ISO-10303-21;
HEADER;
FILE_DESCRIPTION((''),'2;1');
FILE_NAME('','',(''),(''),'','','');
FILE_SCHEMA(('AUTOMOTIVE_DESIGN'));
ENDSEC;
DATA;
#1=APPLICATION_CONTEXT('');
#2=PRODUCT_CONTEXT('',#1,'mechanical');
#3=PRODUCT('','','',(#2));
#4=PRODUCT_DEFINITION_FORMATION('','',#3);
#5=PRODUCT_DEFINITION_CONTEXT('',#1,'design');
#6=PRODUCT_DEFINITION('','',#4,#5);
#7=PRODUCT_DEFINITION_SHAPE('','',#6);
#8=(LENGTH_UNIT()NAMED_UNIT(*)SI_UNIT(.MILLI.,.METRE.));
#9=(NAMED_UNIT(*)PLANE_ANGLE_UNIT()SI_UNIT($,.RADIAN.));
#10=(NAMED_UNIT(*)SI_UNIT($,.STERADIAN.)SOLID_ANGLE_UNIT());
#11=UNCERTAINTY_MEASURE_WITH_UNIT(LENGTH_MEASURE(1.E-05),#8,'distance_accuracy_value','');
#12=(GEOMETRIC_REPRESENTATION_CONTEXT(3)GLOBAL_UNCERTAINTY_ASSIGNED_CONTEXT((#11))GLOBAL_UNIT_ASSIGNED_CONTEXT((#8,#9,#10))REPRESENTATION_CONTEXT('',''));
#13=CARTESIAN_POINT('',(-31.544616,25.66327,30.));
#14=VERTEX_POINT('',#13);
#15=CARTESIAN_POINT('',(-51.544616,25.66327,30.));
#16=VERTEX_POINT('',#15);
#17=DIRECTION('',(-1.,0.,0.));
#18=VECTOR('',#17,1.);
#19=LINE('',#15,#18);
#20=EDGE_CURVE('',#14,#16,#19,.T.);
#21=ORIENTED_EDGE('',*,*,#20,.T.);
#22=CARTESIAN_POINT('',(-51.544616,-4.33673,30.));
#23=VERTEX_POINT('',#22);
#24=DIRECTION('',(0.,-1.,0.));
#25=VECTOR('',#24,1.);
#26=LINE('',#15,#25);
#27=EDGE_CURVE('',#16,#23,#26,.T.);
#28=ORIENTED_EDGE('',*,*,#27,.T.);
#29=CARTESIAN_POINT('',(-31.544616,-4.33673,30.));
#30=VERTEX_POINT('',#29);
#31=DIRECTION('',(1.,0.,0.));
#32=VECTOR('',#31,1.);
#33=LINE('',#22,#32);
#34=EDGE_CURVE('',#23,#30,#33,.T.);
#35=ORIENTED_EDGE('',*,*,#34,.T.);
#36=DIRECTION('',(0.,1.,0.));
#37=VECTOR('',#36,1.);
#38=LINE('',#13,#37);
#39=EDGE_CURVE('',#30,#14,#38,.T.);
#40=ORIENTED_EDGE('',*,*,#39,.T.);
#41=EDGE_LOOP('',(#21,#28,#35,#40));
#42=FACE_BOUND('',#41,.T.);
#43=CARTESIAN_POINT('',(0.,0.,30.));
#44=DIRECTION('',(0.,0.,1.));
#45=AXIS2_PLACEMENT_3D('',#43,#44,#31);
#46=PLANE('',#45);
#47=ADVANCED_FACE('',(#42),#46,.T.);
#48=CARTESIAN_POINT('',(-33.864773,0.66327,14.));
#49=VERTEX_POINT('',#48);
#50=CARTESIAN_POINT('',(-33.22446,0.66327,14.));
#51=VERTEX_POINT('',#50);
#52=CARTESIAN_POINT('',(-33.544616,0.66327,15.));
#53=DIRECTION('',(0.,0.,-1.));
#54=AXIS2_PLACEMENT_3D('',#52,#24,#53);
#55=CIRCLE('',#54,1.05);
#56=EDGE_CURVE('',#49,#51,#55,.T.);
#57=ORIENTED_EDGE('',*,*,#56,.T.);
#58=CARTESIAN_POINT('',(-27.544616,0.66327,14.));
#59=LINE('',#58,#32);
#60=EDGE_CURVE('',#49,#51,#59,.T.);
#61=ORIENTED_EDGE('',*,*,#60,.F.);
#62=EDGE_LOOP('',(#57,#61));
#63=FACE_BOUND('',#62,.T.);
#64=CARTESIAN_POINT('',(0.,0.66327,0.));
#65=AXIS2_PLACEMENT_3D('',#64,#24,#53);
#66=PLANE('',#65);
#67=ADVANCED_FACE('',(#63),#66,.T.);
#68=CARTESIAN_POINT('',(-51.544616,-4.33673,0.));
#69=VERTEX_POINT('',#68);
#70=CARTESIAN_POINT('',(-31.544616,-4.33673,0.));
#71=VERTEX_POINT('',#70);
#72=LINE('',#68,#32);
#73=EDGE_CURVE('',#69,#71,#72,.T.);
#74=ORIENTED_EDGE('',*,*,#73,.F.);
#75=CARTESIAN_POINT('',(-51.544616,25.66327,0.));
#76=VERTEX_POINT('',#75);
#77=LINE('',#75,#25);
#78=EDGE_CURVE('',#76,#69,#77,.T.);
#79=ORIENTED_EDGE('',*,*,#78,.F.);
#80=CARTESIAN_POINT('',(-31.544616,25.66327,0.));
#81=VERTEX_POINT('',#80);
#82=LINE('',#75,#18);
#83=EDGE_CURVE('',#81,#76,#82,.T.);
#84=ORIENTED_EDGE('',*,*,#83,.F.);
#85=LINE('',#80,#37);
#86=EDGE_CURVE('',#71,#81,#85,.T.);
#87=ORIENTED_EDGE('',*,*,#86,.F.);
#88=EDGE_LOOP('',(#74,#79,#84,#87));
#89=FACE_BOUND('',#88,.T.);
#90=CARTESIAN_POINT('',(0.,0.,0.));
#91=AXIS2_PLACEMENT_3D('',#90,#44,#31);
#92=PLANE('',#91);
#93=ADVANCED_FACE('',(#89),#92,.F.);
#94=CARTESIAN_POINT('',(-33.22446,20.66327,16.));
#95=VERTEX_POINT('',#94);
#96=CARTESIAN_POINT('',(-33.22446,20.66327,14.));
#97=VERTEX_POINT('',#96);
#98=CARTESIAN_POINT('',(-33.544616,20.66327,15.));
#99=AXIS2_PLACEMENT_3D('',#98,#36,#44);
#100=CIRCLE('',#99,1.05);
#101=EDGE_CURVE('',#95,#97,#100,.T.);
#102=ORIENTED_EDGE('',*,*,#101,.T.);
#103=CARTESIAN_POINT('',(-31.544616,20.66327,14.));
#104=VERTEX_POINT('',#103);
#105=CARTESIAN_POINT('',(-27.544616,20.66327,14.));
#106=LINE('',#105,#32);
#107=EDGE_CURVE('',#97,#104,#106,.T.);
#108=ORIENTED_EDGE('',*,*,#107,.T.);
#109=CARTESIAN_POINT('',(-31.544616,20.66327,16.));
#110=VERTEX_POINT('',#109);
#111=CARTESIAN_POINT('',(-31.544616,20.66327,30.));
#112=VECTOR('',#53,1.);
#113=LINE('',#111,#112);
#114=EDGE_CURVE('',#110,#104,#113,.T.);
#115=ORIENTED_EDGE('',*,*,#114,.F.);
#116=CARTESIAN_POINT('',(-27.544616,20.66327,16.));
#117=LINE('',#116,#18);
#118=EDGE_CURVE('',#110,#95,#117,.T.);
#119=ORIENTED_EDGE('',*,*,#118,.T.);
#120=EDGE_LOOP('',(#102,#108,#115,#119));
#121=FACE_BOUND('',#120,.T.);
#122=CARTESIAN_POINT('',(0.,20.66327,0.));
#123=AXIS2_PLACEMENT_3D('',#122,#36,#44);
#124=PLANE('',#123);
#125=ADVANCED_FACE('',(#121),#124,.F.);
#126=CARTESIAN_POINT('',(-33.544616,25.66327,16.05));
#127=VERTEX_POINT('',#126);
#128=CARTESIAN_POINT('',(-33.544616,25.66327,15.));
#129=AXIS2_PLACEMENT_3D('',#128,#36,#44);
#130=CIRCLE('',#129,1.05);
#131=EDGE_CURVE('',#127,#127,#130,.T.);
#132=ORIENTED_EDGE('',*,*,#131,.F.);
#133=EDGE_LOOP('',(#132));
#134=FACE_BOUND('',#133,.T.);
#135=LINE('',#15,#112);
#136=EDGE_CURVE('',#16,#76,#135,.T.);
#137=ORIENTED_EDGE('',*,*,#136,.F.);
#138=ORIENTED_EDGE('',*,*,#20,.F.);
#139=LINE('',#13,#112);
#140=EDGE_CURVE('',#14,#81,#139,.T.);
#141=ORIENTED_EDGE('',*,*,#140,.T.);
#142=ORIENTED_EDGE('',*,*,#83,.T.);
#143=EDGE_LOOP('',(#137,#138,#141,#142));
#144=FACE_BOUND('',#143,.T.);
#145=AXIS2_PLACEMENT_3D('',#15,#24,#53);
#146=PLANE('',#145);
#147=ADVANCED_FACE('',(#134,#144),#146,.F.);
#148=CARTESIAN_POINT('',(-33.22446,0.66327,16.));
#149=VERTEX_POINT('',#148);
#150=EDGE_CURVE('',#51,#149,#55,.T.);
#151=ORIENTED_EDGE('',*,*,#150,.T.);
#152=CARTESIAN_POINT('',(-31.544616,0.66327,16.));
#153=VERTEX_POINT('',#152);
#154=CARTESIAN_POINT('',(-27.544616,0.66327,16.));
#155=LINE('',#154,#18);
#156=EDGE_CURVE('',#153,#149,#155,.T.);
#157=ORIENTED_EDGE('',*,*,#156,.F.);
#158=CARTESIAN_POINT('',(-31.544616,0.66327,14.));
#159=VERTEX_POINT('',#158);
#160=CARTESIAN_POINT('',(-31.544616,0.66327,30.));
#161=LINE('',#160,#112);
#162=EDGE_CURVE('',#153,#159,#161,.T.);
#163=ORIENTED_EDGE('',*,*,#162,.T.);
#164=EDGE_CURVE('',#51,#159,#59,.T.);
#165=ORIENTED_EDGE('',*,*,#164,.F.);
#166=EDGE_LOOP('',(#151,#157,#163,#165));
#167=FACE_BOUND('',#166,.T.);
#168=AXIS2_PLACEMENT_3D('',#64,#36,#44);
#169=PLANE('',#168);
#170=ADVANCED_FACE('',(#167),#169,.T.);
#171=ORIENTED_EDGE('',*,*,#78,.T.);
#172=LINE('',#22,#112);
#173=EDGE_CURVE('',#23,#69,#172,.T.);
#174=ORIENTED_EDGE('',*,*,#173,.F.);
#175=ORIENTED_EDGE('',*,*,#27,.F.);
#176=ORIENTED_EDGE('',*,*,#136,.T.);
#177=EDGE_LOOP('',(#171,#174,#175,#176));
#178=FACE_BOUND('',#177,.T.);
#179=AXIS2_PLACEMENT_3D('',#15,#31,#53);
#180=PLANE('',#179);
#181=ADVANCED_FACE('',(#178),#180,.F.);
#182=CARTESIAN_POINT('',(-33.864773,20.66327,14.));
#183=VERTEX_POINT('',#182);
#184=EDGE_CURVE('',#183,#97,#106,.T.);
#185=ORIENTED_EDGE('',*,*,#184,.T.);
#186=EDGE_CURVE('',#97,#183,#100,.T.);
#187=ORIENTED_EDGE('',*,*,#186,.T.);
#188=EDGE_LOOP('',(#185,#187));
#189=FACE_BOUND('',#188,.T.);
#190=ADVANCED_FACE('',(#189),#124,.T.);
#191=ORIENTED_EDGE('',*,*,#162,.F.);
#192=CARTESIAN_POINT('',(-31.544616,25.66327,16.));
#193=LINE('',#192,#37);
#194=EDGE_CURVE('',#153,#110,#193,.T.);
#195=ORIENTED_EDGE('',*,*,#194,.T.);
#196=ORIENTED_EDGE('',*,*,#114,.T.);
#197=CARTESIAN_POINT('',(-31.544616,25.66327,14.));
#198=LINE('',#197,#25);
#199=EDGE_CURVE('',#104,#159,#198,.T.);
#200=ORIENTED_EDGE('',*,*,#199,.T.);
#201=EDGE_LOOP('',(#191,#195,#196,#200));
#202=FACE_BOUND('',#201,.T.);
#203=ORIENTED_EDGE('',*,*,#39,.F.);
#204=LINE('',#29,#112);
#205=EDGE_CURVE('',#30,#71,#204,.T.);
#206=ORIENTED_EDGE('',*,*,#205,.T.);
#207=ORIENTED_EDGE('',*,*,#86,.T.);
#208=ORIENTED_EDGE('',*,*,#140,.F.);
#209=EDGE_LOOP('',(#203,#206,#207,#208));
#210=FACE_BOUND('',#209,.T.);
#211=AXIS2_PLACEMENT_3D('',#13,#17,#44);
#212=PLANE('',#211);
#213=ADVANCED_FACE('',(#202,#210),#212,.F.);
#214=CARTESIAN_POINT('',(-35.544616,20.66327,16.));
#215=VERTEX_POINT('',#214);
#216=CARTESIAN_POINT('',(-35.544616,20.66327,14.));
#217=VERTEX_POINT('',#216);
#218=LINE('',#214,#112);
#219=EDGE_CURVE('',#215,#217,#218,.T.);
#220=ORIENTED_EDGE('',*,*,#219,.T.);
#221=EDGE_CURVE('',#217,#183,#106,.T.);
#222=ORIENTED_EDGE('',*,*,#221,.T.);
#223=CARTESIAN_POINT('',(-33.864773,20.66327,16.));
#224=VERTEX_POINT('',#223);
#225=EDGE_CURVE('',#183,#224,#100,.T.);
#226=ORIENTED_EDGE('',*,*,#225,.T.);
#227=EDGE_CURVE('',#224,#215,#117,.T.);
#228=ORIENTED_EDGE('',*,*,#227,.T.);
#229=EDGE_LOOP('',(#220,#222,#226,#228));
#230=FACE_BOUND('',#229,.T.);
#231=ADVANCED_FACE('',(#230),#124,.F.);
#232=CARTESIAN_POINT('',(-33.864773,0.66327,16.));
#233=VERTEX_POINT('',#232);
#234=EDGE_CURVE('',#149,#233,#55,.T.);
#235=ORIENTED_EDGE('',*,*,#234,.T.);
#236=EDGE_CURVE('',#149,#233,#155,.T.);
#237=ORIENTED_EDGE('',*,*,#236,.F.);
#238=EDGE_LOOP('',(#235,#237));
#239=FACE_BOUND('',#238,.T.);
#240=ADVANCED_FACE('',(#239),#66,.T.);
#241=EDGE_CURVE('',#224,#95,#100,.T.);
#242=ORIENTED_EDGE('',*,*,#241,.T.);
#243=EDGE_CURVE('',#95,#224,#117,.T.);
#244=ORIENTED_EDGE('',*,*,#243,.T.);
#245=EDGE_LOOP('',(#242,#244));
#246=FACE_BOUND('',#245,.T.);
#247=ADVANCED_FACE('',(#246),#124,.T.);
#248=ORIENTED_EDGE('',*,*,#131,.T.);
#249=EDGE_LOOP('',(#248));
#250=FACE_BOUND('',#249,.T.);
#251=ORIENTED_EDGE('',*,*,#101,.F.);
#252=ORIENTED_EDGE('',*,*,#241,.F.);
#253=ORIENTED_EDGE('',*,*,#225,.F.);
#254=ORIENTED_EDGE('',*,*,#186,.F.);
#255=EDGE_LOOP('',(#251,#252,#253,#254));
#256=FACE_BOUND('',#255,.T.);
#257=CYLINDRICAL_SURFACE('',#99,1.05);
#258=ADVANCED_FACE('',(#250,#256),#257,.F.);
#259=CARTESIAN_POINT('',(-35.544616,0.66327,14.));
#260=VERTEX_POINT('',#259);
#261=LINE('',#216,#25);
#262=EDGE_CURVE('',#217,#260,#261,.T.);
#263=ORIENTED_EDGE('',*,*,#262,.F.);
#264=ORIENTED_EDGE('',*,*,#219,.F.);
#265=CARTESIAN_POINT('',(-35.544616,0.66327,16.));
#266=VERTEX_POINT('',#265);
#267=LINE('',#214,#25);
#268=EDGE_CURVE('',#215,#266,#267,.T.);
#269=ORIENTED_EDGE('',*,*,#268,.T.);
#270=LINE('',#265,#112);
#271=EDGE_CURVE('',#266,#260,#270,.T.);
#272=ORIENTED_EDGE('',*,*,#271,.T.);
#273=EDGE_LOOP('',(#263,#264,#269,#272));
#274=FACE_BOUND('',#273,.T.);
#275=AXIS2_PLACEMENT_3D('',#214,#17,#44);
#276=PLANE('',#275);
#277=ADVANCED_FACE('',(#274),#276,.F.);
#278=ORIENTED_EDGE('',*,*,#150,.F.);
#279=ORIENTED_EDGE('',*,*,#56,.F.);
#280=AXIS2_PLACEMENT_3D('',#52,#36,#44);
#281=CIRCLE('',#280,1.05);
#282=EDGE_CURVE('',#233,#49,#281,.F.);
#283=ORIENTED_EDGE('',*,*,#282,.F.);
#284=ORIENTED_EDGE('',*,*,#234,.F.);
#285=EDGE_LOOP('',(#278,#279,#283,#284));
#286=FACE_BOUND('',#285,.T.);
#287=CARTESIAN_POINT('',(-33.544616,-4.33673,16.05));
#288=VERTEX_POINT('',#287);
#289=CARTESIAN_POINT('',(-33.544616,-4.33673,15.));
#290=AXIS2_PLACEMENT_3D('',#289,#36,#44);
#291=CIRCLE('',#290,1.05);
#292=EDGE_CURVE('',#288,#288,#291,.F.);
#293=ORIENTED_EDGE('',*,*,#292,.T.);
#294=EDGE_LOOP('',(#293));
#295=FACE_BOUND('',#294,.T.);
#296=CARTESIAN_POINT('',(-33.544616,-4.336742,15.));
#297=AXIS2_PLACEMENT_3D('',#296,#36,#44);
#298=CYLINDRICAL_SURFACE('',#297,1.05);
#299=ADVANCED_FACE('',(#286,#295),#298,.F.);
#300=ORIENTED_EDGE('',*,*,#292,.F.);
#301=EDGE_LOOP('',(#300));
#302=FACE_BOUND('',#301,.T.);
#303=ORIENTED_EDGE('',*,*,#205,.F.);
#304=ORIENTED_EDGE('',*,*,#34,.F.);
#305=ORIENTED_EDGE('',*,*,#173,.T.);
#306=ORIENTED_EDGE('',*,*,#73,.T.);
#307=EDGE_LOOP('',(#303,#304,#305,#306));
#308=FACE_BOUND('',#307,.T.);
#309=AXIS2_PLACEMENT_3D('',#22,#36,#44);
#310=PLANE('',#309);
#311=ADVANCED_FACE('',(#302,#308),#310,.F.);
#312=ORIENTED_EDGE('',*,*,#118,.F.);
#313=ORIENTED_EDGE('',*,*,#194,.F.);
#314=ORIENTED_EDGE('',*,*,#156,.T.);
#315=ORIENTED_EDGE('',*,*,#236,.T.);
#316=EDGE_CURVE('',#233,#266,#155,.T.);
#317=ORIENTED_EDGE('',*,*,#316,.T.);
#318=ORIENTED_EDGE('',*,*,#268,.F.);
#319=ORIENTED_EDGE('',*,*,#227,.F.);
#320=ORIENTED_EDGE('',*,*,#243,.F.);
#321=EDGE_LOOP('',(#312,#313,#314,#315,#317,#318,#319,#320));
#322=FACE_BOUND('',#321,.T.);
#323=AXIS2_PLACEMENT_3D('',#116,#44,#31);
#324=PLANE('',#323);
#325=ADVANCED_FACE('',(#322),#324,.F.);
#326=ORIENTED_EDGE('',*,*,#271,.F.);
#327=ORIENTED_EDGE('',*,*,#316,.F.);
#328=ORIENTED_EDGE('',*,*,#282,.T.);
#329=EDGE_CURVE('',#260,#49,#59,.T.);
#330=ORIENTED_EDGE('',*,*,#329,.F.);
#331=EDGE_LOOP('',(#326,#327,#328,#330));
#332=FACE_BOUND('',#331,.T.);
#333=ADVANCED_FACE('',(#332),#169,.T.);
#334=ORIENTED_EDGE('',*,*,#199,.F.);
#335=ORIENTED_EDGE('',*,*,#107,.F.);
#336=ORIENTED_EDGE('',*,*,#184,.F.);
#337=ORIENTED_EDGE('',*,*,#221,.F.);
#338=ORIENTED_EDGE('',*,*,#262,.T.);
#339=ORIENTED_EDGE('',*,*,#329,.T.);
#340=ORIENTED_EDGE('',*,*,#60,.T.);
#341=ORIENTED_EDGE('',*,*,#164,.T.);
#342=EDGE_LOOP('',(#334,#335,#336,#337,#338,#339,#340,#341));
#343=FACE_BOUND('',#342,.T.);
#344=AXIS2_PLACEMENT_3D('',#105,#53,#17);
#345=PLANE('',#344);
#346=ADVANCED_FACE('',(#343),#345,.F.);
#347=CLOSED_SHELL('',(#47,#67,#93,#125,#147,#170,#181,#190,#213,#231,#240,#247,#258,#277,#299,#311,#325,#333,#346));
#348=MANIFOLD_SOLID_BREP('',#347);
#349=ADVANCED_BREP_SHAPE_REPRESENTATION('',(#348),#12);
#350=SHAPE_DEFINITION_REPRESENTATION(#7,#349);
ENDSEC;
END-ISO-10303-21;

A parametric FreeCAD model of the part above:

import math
import FreeCAD as App
import Part
import Sketcher
Q = App.Units.Quantity


def add_polygon(sketch, points):
    """Adds a closed chain of lines whose ends are joined by coincident constraints."""
    first, n = sketch.GeometryCount, len(points)
    for a, b in zip(points, points[1:] + points[:1]):
        sketch.addGeometry(Part.LineSegment(App.Vector(*a, 0), App.Vector(*b, 0)), False)
    for i in range(n):
        sketch.addConstraint(Sketcher.Constraint("Coincident", first + i, 2, first + (i + 1) % n, 1))

doc = App.newDocument("Part")
body = doc.addObject("PartDesign::Body", "Body")

sketch1 = doc.addObject("Sketcher::SketchObject", "Sketch")
body.addObject(sketch1)
sketch1.AttachmentSupport = (doc.XY_Plane, [""])
sketch1.MapMode = "FlatFace"
add_polygon(sketch1, [(-51.544616, 25.66327), (-51.544616, -4.33673), (-31.544616, -4.33673), (-31.544616, 25.66327)])
sketch1.addConstraint([
    Sketcher.Constraint("Vertical", 0),
    Sketcher.Constraint("Horizontal", 1),
    Sketcher.Constraint("Vertical", 2),
    Sketcher.Constraint("Horizontal", 3),
    Sketcher.Constraint("DistanceX", 1, 1, 1, 2, Q("20 mm")),
    Sketcher.Constraint("DistanceY", 0, 2, 0, 1, Q("30 mm")),
    Sketcher.Constraint("DistanceY", 0, 2, -1, 1, Q("4.33673 mm")),
    Sketcher.Constraint("DistanceX", 0, 2, -1, 1, Q("51.544616 mm")),
])
pad1 = doc.addObject("PartDesign::Pad", "Pad")
body.addObject(pad1)
pad1.Profile = sketch1
pad1.Length = 30

sketch2 = doc.addObject("Sketcher::SketchObject", "Sketch001")
body.addObject(sketch2)
sketch2.AttachmentSupport = (doc.XZ_Plane, [""])
sketch2.MapMode = "FlatFace"
sketch2.AttachmentOffset = App.Placement(App.Vector(0, 0, -0.66327), App.Rotation())
add_polygon(sketch2, [(-27.544616, 14), (-27.544616, 16), (-35.544616, 16), (-35.544616, 14)])
sketch2.addConstraint([
    Sketcher.Constraint("Vertical", 0),
    Sketcher.Constraint("Horizontal", 1),
    Sketcher.Constraint("Vertical", 2),
    Sketcher.Constraint("Horizontal", 3),
    Sketcher.Constraint("DistanceX", 1, 2, 1, 1, Q("8 mm")),
    Sketcher.Constraint("DistanceY", 0, 1, 0, 2, Q("2 mm")),
    Sketcher.Constraint("DistanceY", -1, 1, 0, 2, Q("16 mm")),
    Sketcher.Constraint("DistanceX", 0, 2, -1, 1, Q("27.544616 mm")),
])
pocket1 = doc.addObject("PartDesign::Pocket", "Pocket")
body.addObject(pocket1)
pocket1.Profile = sketch2
pocket1.Length = 20

sketch3 = doc.addObject("Sketcher::SketchObject", "Sketch002")
body.addObject(sketch3)
sketch3.AttachmentSupport = (doc.XZ_Plane, [""])
sketch3.MapMode = "FlatFace"
sketch3.AttachmentOffset = App.Placement(App.Vector(0, 0, 4.33673), App.Rotation())
sketch3.addGeometry([
    Part.ArcOfCircle(Part.Circle(App.Vector(-33.544616, 15, 0), App.Vector(0, 0, 1), 1.05), math.radians(0), math.radians(180)),
    Part.ArcOfCircle(Part.Circle(App.Vector(-33.544616, 15, 0), App.Vector(0, 0, 1), 1.05), math.radians(180), math.radians(252.24721)),
    Part.ArcOfCircle(Part.Circle(App.Vector(-33.544616, 15, 0), App.Vector(0, 0, 1), 1.05), math.radians(-107.75279), math.radians(-72.24721)),
    Part.ArcOfCircle(Part.Circle(App.Vector(-33.544616, 15, 0), App.Vector(0, 0, 1), 1.05), math.radians(-72.24721), math.radians(0)),
], False)
sketch3.addConstraint([
    Sketcher.Constraint("Tangent", 0, 2, 1, 1),
    Sketcher.Constraint("Tangent", 1, 2, 2, 1),
    Sketcher.Constraint("Tangent", 2, 2, 3, 1),
    Sketcher.Constraint("Tangent", 3, 2, 0, 1),
    Sketcher.Constraint("Equal", 0, 1),
    Sketcher.Constraint("Horizontal", 3, 3, 0, 2),
    Sketcher.Constraint("Horizontal", 1, 2, 2, 2),
    Sketcher.Constraint("Horizontal", 0, 2, 3, 2),
    Sketcher.Constraint("Radius", 0, Q("1.05 mm")),
    Sketcher.Constraint("DistanceY", -1, 1, 0, 3, Q("15 mm")),
    Sketcher.Constraint("DistanceY", -1, 1, 1, 2, Q("14 mm")),
    Sketcher.Constraint("DistanceX", 2, 2, -1, 1, Q("33.22446 mm")),
])
pocket2 = doc.addObject("PartDesign::Pocket", "Pocket001")
body.addObject(pocket2)
pocket2.Profile = sketch3
pocket2.Type = "TwoLengths"
pocket2.Length = 67.759625
pocket2.Length2 = 5
pocket2.Reversed = True

sketch4 = doc.addObject("Sketcher::SketchObject", "Sketch003")
body.addObject(sketch4)
sketch4.AttachmentSupport = (doc.XZ_Plane, [""])
sketch4.MapMode = "FlatFace"
sketch4.AttachmentOffset = App.Placement(App.Vector(0, 0, -25.66327), App.Rotation())
sketch4.addGeometry(Part.Circle(App.Vector(-33.544616, 15, 0), App.Vector(0, 0, 1), 1.05), False)
sketch4.addConstraint([
    Sketcher.Constraint("Diameter", 0, Q("2.1 mm")),
    Sketcher.Constraint("DistanceY", -1, 1, 0, 3, Q("15 mm")),
    Sketcher.Constraint("DistanceX", 0, 3, -1, 1, Q("33.544616 mm")),
])
pocket3 = doc.addObject("PartDesign::Pocket", "Pocket002")
body.addObject(pocket3)
pocket3.Profile = sketch4
pocket3.Length = 5
pocket3.Reversed = True

doc.recompute()
